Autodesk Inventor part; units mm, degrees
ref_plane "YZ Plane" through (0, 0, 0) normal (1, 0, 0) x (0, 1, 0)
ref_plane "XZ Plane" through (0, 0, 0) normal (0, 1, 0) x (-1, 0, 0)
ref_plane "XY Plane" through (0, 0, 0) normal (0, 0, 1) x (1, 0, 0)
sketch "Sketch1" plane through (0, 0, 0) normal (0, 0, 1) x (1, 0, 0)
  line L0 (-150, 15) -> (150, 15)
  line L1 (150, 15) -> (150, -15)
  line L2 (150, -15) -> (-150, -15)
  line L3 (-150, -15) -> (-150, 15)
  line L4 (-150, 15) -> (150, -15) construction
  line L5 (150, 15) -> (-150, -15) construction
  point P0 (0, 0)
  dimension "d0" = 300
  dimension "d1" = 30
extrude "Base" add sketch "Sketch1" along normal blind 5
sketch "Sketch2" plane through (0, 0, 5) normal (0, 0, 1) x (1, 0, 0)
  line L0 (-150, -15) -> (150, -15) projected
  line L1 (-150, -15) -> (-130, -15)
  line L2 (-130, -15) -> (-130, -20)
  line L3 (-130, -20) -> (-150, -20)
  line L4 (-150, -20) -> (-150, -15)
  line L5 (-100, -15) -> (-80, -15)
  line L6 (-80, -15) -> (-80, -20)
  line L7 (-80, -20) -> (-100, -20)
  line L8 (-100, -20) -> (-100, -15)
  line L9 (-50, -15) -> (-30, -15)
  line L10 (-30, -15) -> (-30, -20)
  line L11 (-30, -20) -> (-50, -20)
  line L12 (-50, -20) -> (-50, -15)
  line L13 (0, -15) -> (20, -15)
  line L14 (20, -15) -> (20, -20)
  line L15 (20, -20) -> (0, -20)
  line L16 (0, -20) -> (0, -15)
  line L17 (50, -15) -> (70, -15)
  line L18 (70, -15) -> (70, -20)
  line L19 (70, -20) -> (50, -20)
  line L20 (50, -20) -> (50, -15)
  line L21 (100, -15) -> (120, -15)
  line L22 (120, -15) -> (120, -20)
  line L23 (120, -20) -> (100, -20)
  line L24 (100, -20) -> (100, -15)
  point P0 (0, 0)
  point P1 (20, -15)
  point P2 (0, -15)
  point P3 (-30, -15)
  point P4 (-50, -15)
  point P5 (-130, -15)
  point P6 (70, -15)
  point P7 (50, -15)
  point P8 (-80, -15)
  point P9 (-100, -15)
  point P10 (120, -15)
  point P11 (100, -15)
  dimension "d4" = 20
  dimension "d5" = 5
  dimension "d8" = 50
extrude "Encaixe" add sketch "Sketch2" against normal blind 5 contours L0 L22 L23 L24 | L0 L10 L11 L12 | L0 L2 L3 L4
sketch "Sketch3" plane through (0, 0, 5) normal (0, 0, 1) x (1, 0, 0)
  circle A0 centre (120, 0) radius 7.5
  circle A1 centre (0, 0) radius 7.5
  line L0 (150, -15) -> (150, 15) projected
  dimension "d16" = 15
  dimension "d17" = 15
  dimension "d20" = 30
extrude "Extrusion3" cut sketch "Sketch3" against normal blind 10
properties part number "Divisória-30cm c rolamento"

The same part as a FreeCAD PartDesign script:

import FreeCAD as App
import Part
import Sketcher
Q = App.Units.Quantity


def add_polygon(sketch, points):
    """Adds a closed chain of lines whose ends are joined by coincident constraints."""
    first, n = sketch.GeometryCount, len(points)
    for a, b in zip(points, points[1:] + points[:1]):
        sketch.addGeometry(Part.LineSegment(App.Vector(*a, 0), App.Vector(*b, 0)), False)
    for i in range(n):
        sketch.addConstraint(Sketcher.Constraint("Coincident", first + i, 2, first + (i + 1) % n, 1))

doc = App.newDocument("Part")
body = doc.addObject("PartDesign::Body", "Body")

# Sketch on XY plane
sketch1 = body.newObject("Sketcher::SketchObject", "Sketch")
sketch1.AttachmentSupport = (doc.getObject("XY_Plane"), [""])
sketch1.MapMode = "FlatFace"
add_polygon(sketch1, [(150, 15), (-150, 15), (-150, -15), (150, -15)])  # lines 0-3
sketch1.addConstraint(Sketcher.Constraint("Horizontal", 0))
sketch1.addConstraint(Sketcher.Constraint("Vertical", 1))
sketch1.addConstraint(Sketcher.Constraint("Horizontal", 2))
sketch1.addConstraint(Sketcher.Constraint("Vertical", 3))
sketch1.addConstraint(Sketcher.Constraint("Symmetric", 0, 2, 2, 2, -1, 1))
sketch1.addConstraint(Sketcher.Constraint("DistanceX", 0, 2, 0, 1, Q("300 mm")))
sketch1.addConstraint(Sketcher.Constraint("DistanceY", 1, 2, 1, 1, Q("30 mm")))
pad1 = body.newObject("PartDesign::Pad", "Pad")
pad1.Profile = sketch1
pad1.Length = 5

# Sketch on XY plane
sketch2 = body.newObject("Sketcher::SketchObject", "Sketch001")
sketch2.AttachmentSupport = (doc.getObject("XY_Plane"), [""])
sketch2.MapMode = "FlatFace"
sketch2.AttachmentOffset = App.Placement(App.Vector(0, 0, 5), App.Rotation())
add_polygon(sketch2, [(120, -15), (100, -15), (100, -20), (120, -20)])  # lines 0-3
add_polygon(sketch2, [(-30, -15), (-50, -15), (-50, -20), (-30, -20)])  # lines 4-7
add_polygon(sketch2, [(-130, -15), (-150, -15), (-150, -20), (-130, -20)])  # lines 8-11
sketch2.addConstraint(Sketcher.Constraint("Horizontal", 0))
sketch2.addConstraint(Sketcher.Constraint("Vertical", 1))
sketch2.addConstraint(Sketcher.Constraint("Horizontal", 2))
sketch2.addConstraint(Sketcher.Constraint("Vertical", 3))
sketch2.addConstraint(Sketcher.Constraint("Horizontal", 4))
sketch2.addConstraint(Sketcher.Constraint("Vertical", 5))
sketch2.addConstraint(Sketcher.Constraint("Horizontal", 6))
sketch2.addConstraint(Sketcher.Constraint("Vertical", 7))
sketch2.addConstraint(Sketcher.Constraint("Horizontal", 8))
sketch2.addConstraint(Sketcher.Constraint("Vertical", 9))
sketch2.addConstraint(Sketcher.Constraint("Horizontal", 10))
sketch2.addConstraint(Sketcher.Constraint("Vertical", 11))
sketch2.addConstraint(Sketcher.Constraint("Horizontal", 3, 2, 4, 2))
sketch2.addConstraint(Sketcher.Constraint("Horizontal", 2, 2, 5, 2))
sketch2.addConstraint(Sketcher.Constraint("Horizontal", 7, 2, 8, 2))
sketch2.addConstraint(Sketcher.Constraint("Horizontal", 6, 2, 9, 2))
sketch2.addConstraint(Sketcher.Constraint("Equal", 2, 4))
sketch2.addConstraint(Sketcher.Constraint("Equal", 6, 8))
sketch2.addConstraint(Sketcher.Constraint("DistanceX", 0, 2, 0, 1, Q("20 mm")))
sketch2.addConstraint(Sketcher.Constraint("DistanceY", 1, 2, 1, 1, Q("5 mm")))
sketch2.addConstraint(Sketcher.Constraint("DistanceY", 1, 2, -1, 1, Q("20 mm")))
sketch2.addConstraint(Sketcher.Constraint("DistanceX", 4, 2, -1, 1, Q("50 mm")))
sketch2.addConstraint(Sketcher.Constraint("DistanceX", -1, 1, 0, 2, Q("100 mm")))
sketch2.addConstraint(Sketcher.Constraint("DistanceX", 8, 2, -1, 1, Q("150 mm")))
pad2 = body.newObject("PartDesign::Pad", "Pad001")
pad2.Profile = sketch2
pad2.Length = 5
pad2.Reversed = True

# Sketch on XY plane
sketch3 = body.newObject("Sketcher::SketchObject", "Sketch002")
sketch3.AttachmentSupport = (doc.getObject("XY_Plane"), [""])
sketch3.MapMode = "FlatFace"
sketch3.AttachmentOffset = App.Placement(App.Vector(0, 0, 5), App.Rotation())
sketch3.addGeometry(Part.Circle(App.Vector(120, 0, 0), App.Vector(0, 0, 1), 7.5), False)
sketch3.addGeometry(Part.Circle(App.Vector(0, 0, 0), App.Vector(0, 0, 1), 7.5), False)
sketch3.addConstraint(Sketcher.Constraint("Coincident", 1, 3, -1, 1))
sketch3.addConstraint(Sketcher.Constraint("Equal", 0, 1))
sketch3.addConstraint(Sketcher.Constraint("PointOnObject", 0, 3, -1))
sketch3.addConstraint(Sketcher.Constraint("Diameter", 0, Q("15 mm")))
sketch3.addConstraint(Sketcher.Constraint("DistanceX", -1, 1, 0, 3, Q("120 mm")))
pocket1 = body.newObject("PartDesign::Pocket", "Pocket")
pocket1.Profile = sketch3
pocket1.Length = 10

doc.recompute()
